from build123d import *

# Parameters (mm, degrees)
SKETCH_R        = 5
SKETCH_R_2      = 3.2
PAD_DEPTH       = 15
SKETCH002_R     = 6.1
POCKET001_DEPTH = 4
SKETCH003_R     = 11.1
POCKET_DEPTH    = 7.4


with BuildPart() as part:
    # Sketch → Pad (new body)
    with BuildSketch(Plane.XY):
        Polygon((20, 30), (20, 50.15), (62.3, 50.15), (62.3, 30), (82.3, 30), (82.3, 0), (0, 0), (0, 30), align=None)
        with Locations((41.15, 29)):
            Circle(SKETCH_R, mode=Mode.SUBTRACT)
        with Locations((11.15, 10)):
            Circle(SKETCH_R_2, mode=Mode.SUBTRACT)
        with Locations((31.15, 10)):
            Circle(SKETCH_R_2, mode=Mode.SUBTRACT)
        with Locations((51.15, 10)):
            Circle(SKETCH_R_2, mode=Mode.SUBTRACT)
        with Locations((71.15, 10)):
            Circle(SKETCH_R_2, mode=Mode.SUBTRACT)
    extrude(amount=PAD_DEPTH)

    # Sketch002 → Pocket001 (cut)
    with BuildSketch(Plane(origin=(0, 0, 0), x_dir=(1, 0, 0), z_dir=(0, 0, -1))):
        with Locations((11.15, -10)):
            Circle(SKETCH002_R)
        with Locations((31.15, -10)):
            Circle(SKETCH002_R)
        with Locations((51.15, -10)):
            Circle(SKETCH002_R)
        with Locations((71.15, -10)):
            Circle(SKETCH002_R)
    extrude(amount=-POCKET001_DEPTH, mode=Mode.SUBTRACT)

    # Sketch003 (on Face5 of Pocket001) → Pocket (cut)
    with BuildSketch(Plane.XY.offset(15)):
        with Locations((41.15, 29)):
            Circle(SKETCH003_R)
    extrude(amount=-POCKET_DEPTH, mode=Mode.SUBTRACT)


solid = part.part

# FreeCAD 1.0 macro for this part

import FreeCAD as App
import Part
import Sketcher
Q = App.Units.Quantity


def add_polygon(sketch, points):
    """Adds a closed chain of lines whose ends are joined by coincident constraints."""
    first, n = sketch.GeometryCount, len(points)
    for a, b in zip(points, points[1:] + points[:1]):
        sketch.addGeometry(Part.LineSegment(App.Vector(*a, 0), App.Vector(*b, 0)), False)
    for i in range(n):
        sketch.addConstraint(Sketcher.Constraint("Coincident", first + i, 2, first + (i + 1) % n, 1))

doc = App.newDocument("Part")
body = doc.addObject("PartDesign::Body", "Body")

# Sketch on XY plane
sketch1 = body.newObject("Sketcher::SketchObject", "Sketch")
sketch1.AttachmentSupport = (doc.getObject("XY_Plane"), [""])
sketch1.MapMode = "FlatFace"
add_polygon(sketch1, [(20, 50.15), (20, 30), (0, 30), (0, 0), (82.3, 0), (82.3, 30), (62.3, 30), (62.3, 50.15)])  # lines 0-7
sketch1.addGeometry(Part.Circle(App.Vector(71.15, 10, 0), App.Vector(0, 0, 1), 3.2), False)  # 8
sketch1.addGeometry(Part.Circle(App.Vector(51.15, 10, 0), App.Vector(0, 0, 1), 3.2), False)  # 9
sketch1.addGeometry(Part.Circle(App.Vector(31.15, 10, 0), App.Vector(0, 0, 1), 3.2), False)  # 10
sketch1.addGeometry(Part.Circle(App.Vector(11.15, 10, 0), App.Vector(0, 0, 1), 3.2), False)  # 11
sketch1.addGeometry(Part.Circle(App.Vector(41.15, 29, 0), App.Vector(0, 0, 1), 5), False)  # 12
sketch1.addConstraint(Sketcher.Constraint("Vertical", 0))
sketch1.addConstraint(Sketcher.Constraint("Horizontal", 1))
sketch1.addConstraint(Sketcher.Constraint("Vertical", 2))
sketch1.addConstraint(Sketcher.Constraint("Horizontal", 3))
sketch1.addConstraint(Sketcher.Constraint("Vertical", 4))
sketch1.addConstraint(Sketcher.Constraint("Horizontal", 5))
sketch1.addConstraint(Sketcher.Constraint("Vertical", 6))
sketch1.addConstraint(Sketcher.Constraint("Horizontal", 7))
sketch1.addConstraint(Sketcher.Constraint("Coincident", 2, 2, -1, 1))
sketch1.addConstraint(Sketcher.Constraint("Equal", 8, 9))
sketch1.addConstraint(Sketcher.Constraint("Equal", 9, 10))
sketch1.addConstraint(Sketcher.Constraint("Equal", 10, 11))
sketch1.addConstraint(Sketcher.Constraint("Horizontal", 8, 3, 9, 3))
sketch1.addConstraint(Sketcher.Constraint("Horizontal", 9, 3, 10, 3))
sketch1.addConstraint(Sketcher.Constraint("Horizontal", 10, 3, 11, 3))
sketch1.addConstraint(Sketcher.Constraint("Horizontal", 1, 2, 4, 2))
sketch1.addConstraint(Sketcher.Constraint("Equal", 1, 5))
sketch1.addConstraint(Sketcher.Constraint("Diameter", 12, Q("10 mm")))
sketch1.addConstraint(Sketcher.Constraint("Diameter", 8, Q("6.4 mm")))
sketch1.addConstraint(Sketcher.Constraint("DistanceX", 1, 2, 1, 1, Q("20 mm")))
sketch1.addConstraint(Sketcher.Constraint("DistanceY", 2, 2, 2, 1, Q("30 mm")))
sketch1.addConstraint(Sketcher.Constraint("DistanceX", 3, 1, 3, 2, Q("82.3 mm")))
sketch1.addConstraint(Sketcher.Constraint("DistanceY", -1, 1, 8, 3, Q("10 mm")))
sketch1.addConstraint(Sketcher.Constraint("DistanceY", -1, 1, 12, 3, Q("29 mm")))
sketch1.addConstraint(Sketcher.Constraint("DistanceX", 9, 3, 8, 3, Q("20 mm")))
sketch1.addConstraint(Sketcher.Constraint("DistanceX", 10, 3, 9, 3, Q("20 mm")))
sketch1.addConstraint(Sketcher.Constraint("DistanceX", 11, 3, 10, 3, Q("20 mm")))
sketch1.addConstraint(Sketcher.Constraint("DistanceX", 12, 3, 9, 3, Q("10 mm")))
sketch1.addConstraint(Sketcher.Constraint("DistanceY", 0, 2, 0, 1, Q("20.15 mm")))
sketch1.addConstraint(Sketcher.Constraint("DistanceX", -1, 1, 8, 3, Q("71.15 mm")))
pad1 = body.newObject("PartDesign::Pad", "Pad")
pad1.Profile = sketch1
pad1.Length = 15

# Sketch on XY plane
sketch2 = body.newObject("Sketcher::SketchObject", "Sketch001")
sketch2.AttachmentSupport = (doc.getObject("XY_Plane"), [""])
sketch2.MapMode = "FlatFace"
sketch2.addGeometry(Part.Circle(App.Vector(11.15, 10, 0), App.Vector(0, 0, 1), 6.1), False)
sketch2.addGeometry(Part.Circle(App.Vector(31.15, 10, 0), App.Vector(0, 0, 1), 6.1), False)
sketch2.addGeometry(Part.Circle(App.Vector(51.15, 10, 0), App.Vector(0, 0, 1), 6.1), False)
sketch2.addGeometry(Part.Circle(App.Vector(71.15, 10, 0), App.Vector(0, 0, 1), 6.1), False)
sketch2.addConstraint(Sketcher.Constraint("Equal", 0, 1))
sketch2.addConstraint(Sketcher.Constraint("Equal", 1, 2))
sketch2.addConstraint(Sketcher.Constraint("Equal", 2, 3))
sketch2.addConstraint(Sketcher.Constraint("Horizontal", 0, 3, 1, 3))
sketch2.addConstraint(Sketcher.Constraint("Horizontal", 1, 3, 2, 3))
sketch2.addConstraint(Sketcher.Constraint("Horizontal", 2, 3, 3, 3))
sketch2.addConstraint(Sketcher.Constraint("Diameter", 0, Q("12.2 mm")))
sketch2.addConstraint(Sketcher.Constraint("DistanceY", -1, 1, 0, 3, Q("10 mm")))
sketch2.addConstraint(Sketcher.Constraint("DistanceX", 0, 3, 1, 3, Q("20 mm")))
sketch2.addConstraint(Sketcher.Constraint("DistanceX", 1, 3, 2, 3, Q("20 mm")))
sketch2.addConstraint(Sketcher.Constraint("DistanceX", 2, 3, 3, 3, Q("20 mm")))
sketch2.addConstraint(Sketcher.Constraint("DistanceX", -1, 1, 0, 3, Q("11.15 mm")))
pocket1 = body.newObject("PartDesign::Pocket", "Pocket")
pocket1.Profile = sketch2
pocket1.Length = 4
pocket1.Reversed = True

# Sketch on XY plane
sketch3 = body.newObject("Sketcher::SketchObject", "Sketch002")
sketch3.AttachmentSupport = (doc.getObject("XY_Plane"), [""])
sketch3.MapMode = "FlatFace"
sketch3.AttachmentOffset = App.Placement(App.Vector(0, 0, 15), App.Rotation())
sketch3.addGeometry(Part.Circle(App.Vector(41.15, 29, 0), App.Vector(0, 0, 1), 11.1), False)
sketch3.addConstraint(Sketcher.Constraint("Diameter", 0, Q("22.2 mm")))
sketch3.addConstraint(Sketcher.Constraint("DistanceY", -1, 1, 0, 3, Q("29 mm")))
sketch3.addConstraint(Sketcher.Constraint("DistanceX", -1, 1, 0, 3, Q("41.15 mm")))
pocket2 = body.newObject("PartDesign::Pocket", "Pocket001")
pocket2.Profile = sketch3
pocket2.Length = 7.4

doc.recompute()
